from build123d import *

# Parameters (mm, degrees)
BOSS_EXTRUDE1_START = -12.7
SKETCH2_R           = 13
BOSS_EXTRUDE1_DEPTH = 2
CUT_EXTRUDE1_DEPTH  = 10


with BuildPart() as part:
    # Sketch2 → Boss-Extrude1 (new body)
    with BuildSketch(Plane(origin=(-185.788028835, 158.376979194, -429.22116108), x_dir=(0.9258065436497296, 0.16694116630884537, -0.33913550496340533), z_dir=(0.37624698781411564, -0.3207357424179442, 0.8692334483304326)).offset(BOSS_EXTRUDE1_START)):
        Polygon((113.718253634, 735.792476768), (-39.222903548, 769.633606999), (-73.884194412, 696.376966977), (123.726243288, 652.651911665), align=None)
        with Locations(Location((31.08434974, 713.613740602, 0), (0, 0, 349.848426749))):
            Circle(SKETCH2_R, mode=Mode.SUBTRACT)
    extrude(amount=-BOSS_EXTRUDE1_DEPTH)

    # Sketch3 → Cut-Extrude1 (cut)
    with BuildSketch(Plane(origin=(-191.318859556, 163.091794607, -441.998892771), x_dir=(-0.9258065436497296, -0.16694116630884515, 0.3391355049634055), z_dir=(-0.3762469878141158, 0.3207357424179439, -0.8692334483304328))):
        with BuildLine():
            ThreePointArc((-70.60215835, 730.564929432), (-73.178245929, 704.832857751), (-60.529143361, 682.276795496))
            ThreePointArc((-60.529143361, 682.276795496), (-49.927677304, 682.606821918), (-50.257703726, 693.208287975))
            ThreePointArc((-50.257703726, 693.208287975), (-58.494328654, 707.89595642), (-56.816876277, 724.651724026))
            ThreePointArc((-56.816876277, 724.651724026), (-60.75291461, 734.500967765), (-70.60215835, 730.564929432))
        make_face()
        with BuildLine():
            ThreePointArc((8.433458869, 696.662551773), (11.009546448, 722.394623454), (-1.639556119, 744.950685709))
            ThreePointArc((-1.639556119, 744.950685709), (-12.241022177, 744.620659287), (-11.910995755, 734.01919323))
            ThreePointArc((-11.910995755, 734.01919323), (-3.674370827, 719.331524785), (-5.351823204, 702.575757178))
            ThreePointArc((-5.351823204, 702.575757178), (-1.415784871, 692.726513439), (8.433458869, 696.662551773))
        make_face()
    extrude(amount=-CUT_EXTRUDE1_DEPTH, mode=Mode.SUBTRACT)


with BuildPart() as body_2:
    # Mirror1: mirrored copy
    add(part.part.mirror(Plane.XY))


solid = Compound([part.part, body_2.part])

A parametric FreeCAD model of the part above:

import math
import FreeCAD as App
import Part
import Sketcher

V = App.Vector
Q = App.Units.Quantity

doc = App.newDocument("Part")
body = doc.addObject("PartDesign::Body", "Body")

# Sketch on an angled plane
sketch1 = body.newObject("Sketcher::SketchObject", "Sketch")
sketch1.Placement = App.Placement(V(-190.566366, 162.450323, -440.260426), App.Rotation(V(0.925806544, 0.166941166, -0.339135505), V(-0.036337968, 0.932340727, 0.35975036), V(0.376246988, -0.320735742, 0.869233448), "ZXY"))
sketch1.addGeometry(Part.LineSegment(V(113.718254, 735.792477, 0), V(-39.222904, 769.633607, 0)), False)
sketch1.addGeometry(Part.LineSegment(V(-39.222904, 769.633607, 0), V(-73.884194, 696.376967, 0)), False)
sketch1.addGeometry(Part.LineSegment(V(-73.884194, 696.376967, 0), V(123.726243, 652.651912, 0)), False)
sketch1.addGeometry(Part.LineSegment(V(123.726243, 652.651912, 0), V(113.718254, 735.792477, 0)), False)
sketch1.addGeometry(Part.Circle(V(31.08435, 713.613741, 0), V(0, 0, 1), 13), False)
sketch1.addConstraint(Sketcher.Constraint("Coincident", 0, 2, 1, 1))
sketch1.addConstraint(Sketcher.Constraint("Coincident", 1, 2, 2, 1))
sketch1.addConstraint(Sketcher.Constraint("Coincident", 2, 2, 3, 1))
sketch1.addConstraint(Sketcher.Constraint("Coincident", 3, 2, 0, 1))
sketch1.addConstraint(Sketcher.Constraint("Parallel", 0, 2))
sketch1.addConstraint(Sketcher.Constraint("Diameter", 4, Q("26 mm")))
sketch1.addConstraint(Sketcher.Constraint("Distance", 1, Q("81.042831 mm")))
sketch1.addConstraint(Sketcher.Constraint("Distance", 3, Q("83.740751 mm")))
sketch1.addConstraint(Sketcher.Constraint("DistanceX", -1, 1, 4, 3, Q("31.08435 mm")))
sketch1.addConstraint(Sketcher.Constraint("DistanceY", -1, 1, 4, 3, Q("713.613741 mm")))
sketch1.addConstraint(Sketcher.Constraint("DistanceY", -1, 1, 2, 2, Q("652.651912 mm")))
sketch1.addConstraint(Sketcher.Constraint("DistanceX", 1, 2, 0, 2, Q("34.661291 mm")))
sketch1.addConstraint(Sketcher.Constraint("DistanceX", 3, 2, 2, 2, Q("10.00799 mm")))
sketch1.addConstraint(Sketcher.Constraint("DistanceY", 3, 2, 0, 2, Q("33.84113 mm")))
sketch1.addConstraint(Sketcher.Constraint("DistanceX", 0, 2, -1, 1, Q("39.222904 mm")))
pad1 = body.newObject("PartDesign::Pad", "Pad")
pad1.Profile = sketch1
pad1.Length = 2
pad1.Reversed = True

# Sketch on an angled plane
sketch2 = body.newObject("Sketcher::SketchObject", "Sketch001")
sketch2.Placement = App.Placement(V(-191.31886, 163.091795, -441.998893), App.Rotation(V(-0.925806544, -0.166941166, 0.339135505), V(-0.036337968, 0.932340727, 0.35975036), V(-0.376246988, 0.320735742, -0.869233448), "ZXY"))
sketch2.addGeometry(Part.ArcOfCircle(Part.Circle(V(-31.08435, 713.613741, 0), V(0, 0, 1), 43), math.radians(156.783057), math.radians(226.783057)), False)
sketch2.addGeometry(Part.ArcOfCircle(Part.Circle(V(-55.393424, 687.742542, 0), V(0, 0, 1), 7.5), math.radians(-133.216943), math.radians(46.783057)), False)
sketch2.addGeometry(Part.ArcOfCircle(Part.Circle(V(-31.08435, 713.613741, 0), V(0, 0, 1), 28), math.radians(156.783057), math.radians(226.783057)), False)
sketch2.addGeometry(Part.ArcOfCircle(Part.Circle(V(-63.709517, 727.608327, 0), V(0, 0, 1), 7.5), math.radians(-23.216943), math.radians(156.783057)), False)
sketch2.addGeometry(Part.ArcOfCircle(Part.Circle(V(-31.08435, 713.613741, 0), V(0, 0, 1), 43), math.radians(-23.216943), math.radians(46.783057)), False)
sketch2.addGeometry(Part.ArcOfCircle(Part.Circle(V(-6.775276, 739.484939, 0), V(0, 0, 1), 7.5), math.radians(46.783057), math.radians(226.783057)), False)
sketch2.addGeometry(Part.ArcOfCircle(Part.Circle(V(-31.08435, 713.613741, 0), V(0, 0, 1), 28), math.radians(-23.216943), math.radians(46.783057)), False)
sketch2.addGeometry(Part.ArcOfCircle(Part.Circle(V(1.540818, 699.619154, 0), V(0, 0, 1), 7.5), math.radians(156.783057), math.radians(336.783057)), False)
sketch2.addConstraint(Sketcher.Constraint("Tangent", 0, 2, 1, 1))
sketch2.addConstraint(Sketcher.Constraint("Tangent", 1, 2, 2, 2))
sketch2.addConstraint(Sketcher.Constraint("Tangent", 2, 1, 3, 1))
sketch2.addConstraint(Sketcher.Constraint("Tangent", 3, 2, 0, 1))
sketch2.addConstraint(Sketcher.Constraint("Tangent", 4, 2, 5, 1))
sketch2.addConstraint(Sketcher.Constraint("Tangent", 5, 2, 6, 2))
sketch2.addConstraint(Sketcher.Constraint("Tangent", 6, 1, 7, 1))
sketch2.addConstraint(Sketcher.Constraint("Tangent", 7, 2, 4, 1))
sketch2.addConstraint(Sketcher.Constraint("Coincident", 2, 3, 0, 3))
sketch2.addConstraint(Sketcher.Constraint("Coincident", 4, 3, 0, 3))
sketch2.addConstraint(Sketcher.Constraint("Coincident", 6, 3, 0, 3))
sketch2.addConstraint(Sketcher.Constraint("Equal", 0, 4))
sketch2.addConstraint(Sketcher.Constraint("Equal", 3, 5))
sketch2.addConstraint(Sketcher.Constraint("Radius", 0, Q("43 mm")))
sketch2.addConstraint(Sketcher.Constraint("Radius", 2, Q("28 mm")))
sketch2.addConstraint(Sketcher.Constraint("DistanceY", 1, 3, 0, 3, Q("25.871199 mm")))
sketch2.addConstraint(Sketcher.Constraint("DistanceY", 0, 3, 5, 3, Q("25.871199 mm")))
sketch2.addConstraint(Sketcher.Constraint("DistanceX", 0, 3, -1, 1, Q("31.08435 mm")))
sketch2.addConstraint(Sketcher.Constraint("DistanceY", -1, 1, 0, 3, Q("713.613741 mm")))
sketch2.addConstraint(Sketcher.Constraint("DistanceX", 3, 2, -1, 1, Q("70.602158 mm")))
sketch2.addConstraint(Sketcher.Constraint("DistanceX", -1, 1, 7, 2, Q("8.433459 mm")))
pocket1 = body.newObject("PartDesign::Pocket", "Pocket")
pocket1.Profile = sketch2
pocket1.Length = 10
body2 = doc.addObject("PartDesign::Body", "Body001")
doc.recompute()

mirroring = doc.addObject("Part::Mirroring", "Mirroring")
mirroring.Source = body
mirroring.Base = V(0, 0, 0)
mirroring.Normal = V(0, 0, 1)
body2.BaseFeature = mirroring
doc.recompute()
mirroring.Visibility = False

doc.recompute()
